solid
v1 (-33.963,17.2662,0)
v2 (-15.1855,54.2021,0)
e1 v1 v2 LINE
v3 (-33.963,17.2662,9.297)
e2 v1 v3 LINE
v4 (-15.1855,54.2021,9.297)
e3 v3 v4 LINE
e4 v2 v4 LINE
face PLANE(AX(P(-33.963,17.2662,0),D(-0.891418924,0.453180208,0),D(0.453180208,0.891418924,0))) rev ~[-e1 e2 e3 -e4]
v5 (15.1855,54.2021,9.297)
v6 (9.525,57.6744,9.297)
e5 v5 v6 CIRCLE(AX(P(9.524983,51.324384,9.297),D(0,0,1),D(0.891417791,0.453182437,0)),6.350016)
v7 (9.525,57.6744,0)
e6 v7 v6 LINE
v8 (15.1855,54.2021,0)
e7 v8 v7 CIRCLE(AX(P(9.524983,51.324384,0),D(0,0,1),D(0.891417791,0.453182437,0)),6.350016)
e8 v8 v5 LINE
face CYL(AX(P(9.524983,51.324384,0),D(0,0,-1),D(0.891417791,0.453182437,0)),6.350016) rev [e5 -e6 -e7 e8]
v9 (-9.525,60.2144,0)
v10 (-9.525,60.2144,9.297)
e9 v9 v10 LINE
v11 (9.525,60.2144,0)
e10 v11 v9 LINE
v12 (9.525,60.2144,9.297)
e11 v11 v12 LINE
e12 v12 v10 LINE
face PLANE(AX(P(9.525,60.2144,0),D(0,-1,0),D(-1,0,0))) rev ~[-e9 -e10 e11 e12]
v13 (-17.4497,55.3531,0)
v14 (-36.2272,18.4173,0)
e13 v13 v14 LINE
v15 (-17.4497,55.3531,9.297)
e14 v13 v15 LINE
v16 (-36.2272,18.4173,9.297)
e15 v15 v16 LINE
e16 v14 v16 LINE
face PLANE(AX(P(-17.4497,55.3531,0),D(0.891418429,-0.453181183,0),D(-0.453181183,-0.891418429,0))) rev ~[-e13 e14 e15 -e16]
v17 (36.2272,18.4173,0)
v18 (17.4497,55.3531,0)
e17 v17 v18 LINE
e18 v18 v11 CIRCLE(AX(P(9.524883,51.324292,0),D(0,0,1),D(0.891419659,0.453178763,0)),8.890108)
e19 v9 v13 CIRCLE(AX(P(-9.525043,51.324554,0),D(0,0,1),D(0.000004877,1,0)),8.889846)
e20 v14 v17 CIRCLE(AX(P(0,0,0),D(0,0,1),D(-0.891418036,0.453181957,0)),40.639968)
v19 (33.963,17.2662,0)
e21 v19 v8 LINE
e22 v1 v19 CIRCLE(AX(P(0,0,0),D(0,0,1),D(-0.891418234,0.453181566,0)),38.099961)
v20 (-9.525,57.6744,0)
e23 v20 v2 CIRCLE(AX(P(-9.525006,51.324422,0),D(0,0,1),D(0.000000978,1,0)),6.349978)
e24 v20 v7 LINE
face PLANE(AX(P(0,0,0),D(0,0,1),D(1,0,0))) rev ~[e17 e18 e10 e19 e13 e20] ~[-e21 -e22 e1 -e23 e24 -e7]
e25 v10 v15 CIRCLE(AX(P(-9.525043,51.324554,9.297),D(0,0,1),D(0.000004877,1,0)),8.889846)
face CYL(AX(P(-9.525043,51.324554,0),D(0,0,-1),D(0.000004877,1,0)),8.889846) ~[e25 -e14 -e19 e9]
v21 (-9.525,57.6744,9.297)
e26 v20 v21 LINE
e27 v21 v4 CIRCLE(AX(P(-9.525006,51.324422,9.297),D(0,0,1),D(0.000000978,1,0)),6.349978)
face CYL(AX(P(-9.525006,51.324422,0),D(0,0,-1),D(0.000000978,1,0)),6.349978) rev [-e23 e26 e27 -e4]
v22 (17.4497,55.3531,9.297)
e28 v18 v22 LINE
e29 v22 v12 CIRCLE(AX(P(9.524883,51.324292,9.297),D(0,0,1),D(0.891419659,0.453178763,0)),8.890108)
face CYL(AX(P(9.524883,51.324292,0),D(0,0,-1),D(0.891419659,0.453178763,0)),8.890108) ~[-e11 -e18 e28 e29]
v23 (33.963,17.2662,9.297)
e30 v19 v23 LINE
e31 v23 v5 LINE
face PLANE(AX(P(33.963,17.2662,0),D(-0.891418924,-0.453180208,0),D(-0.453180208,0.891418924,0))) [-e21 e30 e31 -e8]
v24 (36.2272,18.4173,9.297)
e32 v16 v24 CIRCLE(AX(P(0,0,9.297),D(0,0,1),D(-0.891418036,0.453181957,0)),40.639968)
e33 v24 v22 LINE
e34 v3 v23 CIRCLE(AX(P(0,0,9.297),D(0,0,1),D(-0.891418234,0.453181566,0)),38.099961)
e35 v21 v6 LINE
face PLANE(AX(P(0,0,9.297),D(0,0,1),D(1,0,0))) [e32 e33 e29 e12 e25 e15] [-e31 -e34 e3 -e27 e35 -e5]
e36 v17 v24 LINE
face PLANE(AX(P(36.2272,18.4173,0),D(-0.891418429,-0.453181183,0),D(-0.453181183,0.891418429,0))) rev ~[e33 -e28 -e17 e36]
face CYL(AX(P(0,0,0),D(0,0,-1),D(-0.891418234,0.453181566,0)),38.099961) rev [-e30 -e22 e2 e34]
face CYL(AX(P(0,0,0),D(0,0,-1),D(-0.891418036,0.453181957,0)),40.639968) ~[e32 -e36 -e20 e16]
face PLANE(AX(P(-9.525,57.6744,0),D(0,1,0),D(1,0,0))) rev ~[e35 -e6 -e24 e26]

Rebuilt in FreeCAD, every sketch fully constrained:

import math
import FreeCAD as App
import Part
import Sketcher
from FreeCAD import Vector
Q = App.Units.Quantity

doc = App.newDocument("Part")
body = doc.addObject("PartDesign::Body", "Body")

sketch1 = body.newObject("Sketcher::SketchObject", "Sketch")
sketch1.AttachmentSupport = (doc.getObject("XY_Plane"), [""])
sketch1.MapMode = "FlatFace"
sketch1.addGeometry([
    Part.ArcOfCircle(Part.Circle(Vector(-9.525, 51.3244, 0), Vector(0, 0, 1), 8.89), math.radians(90), math.radians(153.052466)),
    Part.LineSegment(Vector(-17.4497, 55.3531, 0), Vector(-36.2272, 18.4173, 0)),
    Part.ArcOfCircle(Part.Circle(Vector(0, 0, 0), Vector(0, 0, 1), 40.639968), math.radians(153.051981), math.radians(386.948019)),
    Part.LineSegment(Vector(36.2272, 18.4173, 0), Vector(17.4497, 55.3531, 0)),
    Part.ArcOfCircle(Part.Circle(Vector(9.525, 51.3244, 0), Vector(0, 0, 1), 8.889955), math.radians(26.947534), math.radians(90)),
    Part.LineSegment(Vector(9.525, 60.2144, 0), Vector(-9.525, 60.2144, 0)),
    Part.ArcOfCircle(Part.Circle(Vector(0, 0, 0), Vector(0, 0, 1), 38.099961), math.radians(153.052006), math.radians(386.947994)),
    Part.LineSegment(Vector(-33.963, 17.2662, 0), Vector(-15.1855, 54.2021, 0)),
    Part.ArcOfCircle(Part.Circle(Vector(-9.525, 51.3244, 0), Vector(0, 0, 1), 6.35), math.radians(90), math.radians(153.052006)),
    Part.LineSegment(Vector(-9.525, 57.6744, 0), Vector(9.525, 57.6744, 0)),
    Part.ArcOfCircle(Part.Circle(Vector(9.525, 51.3244, 0), Vector(0, 0, 1), 6.35), math.radians(26.947994), math.radians(90)),
    Part.LineSegment(Vector(15.1855, 54.2021, 0), Vector(33.963, 17.2662, 0)),
], False)
sketch1.addConstraint([
    Sketcher.Constraint("Coincident", 0, 2, 1, 1),
    Sketcher.Constraint("Coincident", 1, 2, 2, 1),
    Sketcher.Constraint("Coincident", 2, 2, 3, 1),
    Sketcher.Constraint("Coincident", 3, 2, 4, 1),
    Sketcher.Constraint("Coincident", 4, 2, 5, 1),
    Sketcher.Constraint("Coincident", 5, 2, 0, 1),
    Sketcher.Constraint("Coincident", 6, 1, 7, 1),
    Sketcher.Constraint("Coincident", 7, 2, 8, 2),
    Sketcher.Constraint("Coincident", 8, 1, 9, 1),
    Sketcher.Constraint("Coincident", 9, 2, 10, 2),
    Sketcher.Constraint("Coincident", 10, 1, 11, 1),
    Sketcher.Constraint("Coincident", 11, 2, 6, 2),
    Sketcher.Constraint("Horizontal", 5),
    Sketcher.Constraint("Horizontal", 9),
    Sketcher.Constraint("Coincident", 2, 3, -1, 1),
    Sketcher.Constraint("Coincident", 6, 3, -1, 1),
    Sketcher.Constraint("Coincident", 8, 3, 0, 3),
    Sketcher.Constraint("Coincident", 10, 3, 4, 3),
    Sketcher.Constraint("Radius", 2, Q("1.6 in")),
    Sketcher.Constraint("Radius", 6, Q("1.5 in")),
    Sketcher.Constraint("DistanceY", 8, 1, 5, 2, Q("0.1 in")),
    Sketcher.Constraint("Radius", 0, Q("0.35 in")),
    Sketcher.Constraint("Radius", 4, Q("0.35 in")),
    Sketcher.Constraint("DistanceX", 5, 2, 5, 1, Q("0.75 in")),
    Sketcher.Constraint("DistanceX", 9, 1, 9, 2, Q("0.75 in")),
    Sketcher.Constraint("DistanceX", 0, 3, 4, 3, Q("0.75 in")),
    Sketcher.Constraint("DistanceX", 0, 3, 4, 2, Q("0.75 in")),
    Sketcher.Constraint("DistanceX", 0, 3, -1, 1, Q("0.375 in")),
    Sketcher.Constraint("DistanceX", 0, 2, -1, 1, Q("0.687 in")),
    Sketcher.Constraint("DistanceX", -1, 1, 3, 2, Q("0.687 in")),
    Sketcher.Constraint("DistanceX", 8, 1, -1, 1, Q("0.375 in")),
    Sketcher.Constraint("Distance", 1, Q("1.6313 in")),
    Sketcher.Constraint("Distance", 3, Q("1.6313 in")),
    Sketcher.Constraint("Distance", 7, Q("1.6313 in")),
    Sketcher.Constraint("Distance", 11, Q("1.6313 in")),
    Sketcher.Constraint("DistanceY", -1, 1, 1, 2, Q("0.7251 in")),
    Sketcher.Constraint("DistanceY", 0, 3, 7, 2, Q("0.1133 in")),
    Sketcher.Constraint("DistanceY", 4, 3, 10, 1, Q("0.1133 in")),
])
pad1 = body.newObject("PartDesign::Pad", "Pad")
pad1.Profile = sketch1
pad1.Length = 9.297

doc.recompute()
